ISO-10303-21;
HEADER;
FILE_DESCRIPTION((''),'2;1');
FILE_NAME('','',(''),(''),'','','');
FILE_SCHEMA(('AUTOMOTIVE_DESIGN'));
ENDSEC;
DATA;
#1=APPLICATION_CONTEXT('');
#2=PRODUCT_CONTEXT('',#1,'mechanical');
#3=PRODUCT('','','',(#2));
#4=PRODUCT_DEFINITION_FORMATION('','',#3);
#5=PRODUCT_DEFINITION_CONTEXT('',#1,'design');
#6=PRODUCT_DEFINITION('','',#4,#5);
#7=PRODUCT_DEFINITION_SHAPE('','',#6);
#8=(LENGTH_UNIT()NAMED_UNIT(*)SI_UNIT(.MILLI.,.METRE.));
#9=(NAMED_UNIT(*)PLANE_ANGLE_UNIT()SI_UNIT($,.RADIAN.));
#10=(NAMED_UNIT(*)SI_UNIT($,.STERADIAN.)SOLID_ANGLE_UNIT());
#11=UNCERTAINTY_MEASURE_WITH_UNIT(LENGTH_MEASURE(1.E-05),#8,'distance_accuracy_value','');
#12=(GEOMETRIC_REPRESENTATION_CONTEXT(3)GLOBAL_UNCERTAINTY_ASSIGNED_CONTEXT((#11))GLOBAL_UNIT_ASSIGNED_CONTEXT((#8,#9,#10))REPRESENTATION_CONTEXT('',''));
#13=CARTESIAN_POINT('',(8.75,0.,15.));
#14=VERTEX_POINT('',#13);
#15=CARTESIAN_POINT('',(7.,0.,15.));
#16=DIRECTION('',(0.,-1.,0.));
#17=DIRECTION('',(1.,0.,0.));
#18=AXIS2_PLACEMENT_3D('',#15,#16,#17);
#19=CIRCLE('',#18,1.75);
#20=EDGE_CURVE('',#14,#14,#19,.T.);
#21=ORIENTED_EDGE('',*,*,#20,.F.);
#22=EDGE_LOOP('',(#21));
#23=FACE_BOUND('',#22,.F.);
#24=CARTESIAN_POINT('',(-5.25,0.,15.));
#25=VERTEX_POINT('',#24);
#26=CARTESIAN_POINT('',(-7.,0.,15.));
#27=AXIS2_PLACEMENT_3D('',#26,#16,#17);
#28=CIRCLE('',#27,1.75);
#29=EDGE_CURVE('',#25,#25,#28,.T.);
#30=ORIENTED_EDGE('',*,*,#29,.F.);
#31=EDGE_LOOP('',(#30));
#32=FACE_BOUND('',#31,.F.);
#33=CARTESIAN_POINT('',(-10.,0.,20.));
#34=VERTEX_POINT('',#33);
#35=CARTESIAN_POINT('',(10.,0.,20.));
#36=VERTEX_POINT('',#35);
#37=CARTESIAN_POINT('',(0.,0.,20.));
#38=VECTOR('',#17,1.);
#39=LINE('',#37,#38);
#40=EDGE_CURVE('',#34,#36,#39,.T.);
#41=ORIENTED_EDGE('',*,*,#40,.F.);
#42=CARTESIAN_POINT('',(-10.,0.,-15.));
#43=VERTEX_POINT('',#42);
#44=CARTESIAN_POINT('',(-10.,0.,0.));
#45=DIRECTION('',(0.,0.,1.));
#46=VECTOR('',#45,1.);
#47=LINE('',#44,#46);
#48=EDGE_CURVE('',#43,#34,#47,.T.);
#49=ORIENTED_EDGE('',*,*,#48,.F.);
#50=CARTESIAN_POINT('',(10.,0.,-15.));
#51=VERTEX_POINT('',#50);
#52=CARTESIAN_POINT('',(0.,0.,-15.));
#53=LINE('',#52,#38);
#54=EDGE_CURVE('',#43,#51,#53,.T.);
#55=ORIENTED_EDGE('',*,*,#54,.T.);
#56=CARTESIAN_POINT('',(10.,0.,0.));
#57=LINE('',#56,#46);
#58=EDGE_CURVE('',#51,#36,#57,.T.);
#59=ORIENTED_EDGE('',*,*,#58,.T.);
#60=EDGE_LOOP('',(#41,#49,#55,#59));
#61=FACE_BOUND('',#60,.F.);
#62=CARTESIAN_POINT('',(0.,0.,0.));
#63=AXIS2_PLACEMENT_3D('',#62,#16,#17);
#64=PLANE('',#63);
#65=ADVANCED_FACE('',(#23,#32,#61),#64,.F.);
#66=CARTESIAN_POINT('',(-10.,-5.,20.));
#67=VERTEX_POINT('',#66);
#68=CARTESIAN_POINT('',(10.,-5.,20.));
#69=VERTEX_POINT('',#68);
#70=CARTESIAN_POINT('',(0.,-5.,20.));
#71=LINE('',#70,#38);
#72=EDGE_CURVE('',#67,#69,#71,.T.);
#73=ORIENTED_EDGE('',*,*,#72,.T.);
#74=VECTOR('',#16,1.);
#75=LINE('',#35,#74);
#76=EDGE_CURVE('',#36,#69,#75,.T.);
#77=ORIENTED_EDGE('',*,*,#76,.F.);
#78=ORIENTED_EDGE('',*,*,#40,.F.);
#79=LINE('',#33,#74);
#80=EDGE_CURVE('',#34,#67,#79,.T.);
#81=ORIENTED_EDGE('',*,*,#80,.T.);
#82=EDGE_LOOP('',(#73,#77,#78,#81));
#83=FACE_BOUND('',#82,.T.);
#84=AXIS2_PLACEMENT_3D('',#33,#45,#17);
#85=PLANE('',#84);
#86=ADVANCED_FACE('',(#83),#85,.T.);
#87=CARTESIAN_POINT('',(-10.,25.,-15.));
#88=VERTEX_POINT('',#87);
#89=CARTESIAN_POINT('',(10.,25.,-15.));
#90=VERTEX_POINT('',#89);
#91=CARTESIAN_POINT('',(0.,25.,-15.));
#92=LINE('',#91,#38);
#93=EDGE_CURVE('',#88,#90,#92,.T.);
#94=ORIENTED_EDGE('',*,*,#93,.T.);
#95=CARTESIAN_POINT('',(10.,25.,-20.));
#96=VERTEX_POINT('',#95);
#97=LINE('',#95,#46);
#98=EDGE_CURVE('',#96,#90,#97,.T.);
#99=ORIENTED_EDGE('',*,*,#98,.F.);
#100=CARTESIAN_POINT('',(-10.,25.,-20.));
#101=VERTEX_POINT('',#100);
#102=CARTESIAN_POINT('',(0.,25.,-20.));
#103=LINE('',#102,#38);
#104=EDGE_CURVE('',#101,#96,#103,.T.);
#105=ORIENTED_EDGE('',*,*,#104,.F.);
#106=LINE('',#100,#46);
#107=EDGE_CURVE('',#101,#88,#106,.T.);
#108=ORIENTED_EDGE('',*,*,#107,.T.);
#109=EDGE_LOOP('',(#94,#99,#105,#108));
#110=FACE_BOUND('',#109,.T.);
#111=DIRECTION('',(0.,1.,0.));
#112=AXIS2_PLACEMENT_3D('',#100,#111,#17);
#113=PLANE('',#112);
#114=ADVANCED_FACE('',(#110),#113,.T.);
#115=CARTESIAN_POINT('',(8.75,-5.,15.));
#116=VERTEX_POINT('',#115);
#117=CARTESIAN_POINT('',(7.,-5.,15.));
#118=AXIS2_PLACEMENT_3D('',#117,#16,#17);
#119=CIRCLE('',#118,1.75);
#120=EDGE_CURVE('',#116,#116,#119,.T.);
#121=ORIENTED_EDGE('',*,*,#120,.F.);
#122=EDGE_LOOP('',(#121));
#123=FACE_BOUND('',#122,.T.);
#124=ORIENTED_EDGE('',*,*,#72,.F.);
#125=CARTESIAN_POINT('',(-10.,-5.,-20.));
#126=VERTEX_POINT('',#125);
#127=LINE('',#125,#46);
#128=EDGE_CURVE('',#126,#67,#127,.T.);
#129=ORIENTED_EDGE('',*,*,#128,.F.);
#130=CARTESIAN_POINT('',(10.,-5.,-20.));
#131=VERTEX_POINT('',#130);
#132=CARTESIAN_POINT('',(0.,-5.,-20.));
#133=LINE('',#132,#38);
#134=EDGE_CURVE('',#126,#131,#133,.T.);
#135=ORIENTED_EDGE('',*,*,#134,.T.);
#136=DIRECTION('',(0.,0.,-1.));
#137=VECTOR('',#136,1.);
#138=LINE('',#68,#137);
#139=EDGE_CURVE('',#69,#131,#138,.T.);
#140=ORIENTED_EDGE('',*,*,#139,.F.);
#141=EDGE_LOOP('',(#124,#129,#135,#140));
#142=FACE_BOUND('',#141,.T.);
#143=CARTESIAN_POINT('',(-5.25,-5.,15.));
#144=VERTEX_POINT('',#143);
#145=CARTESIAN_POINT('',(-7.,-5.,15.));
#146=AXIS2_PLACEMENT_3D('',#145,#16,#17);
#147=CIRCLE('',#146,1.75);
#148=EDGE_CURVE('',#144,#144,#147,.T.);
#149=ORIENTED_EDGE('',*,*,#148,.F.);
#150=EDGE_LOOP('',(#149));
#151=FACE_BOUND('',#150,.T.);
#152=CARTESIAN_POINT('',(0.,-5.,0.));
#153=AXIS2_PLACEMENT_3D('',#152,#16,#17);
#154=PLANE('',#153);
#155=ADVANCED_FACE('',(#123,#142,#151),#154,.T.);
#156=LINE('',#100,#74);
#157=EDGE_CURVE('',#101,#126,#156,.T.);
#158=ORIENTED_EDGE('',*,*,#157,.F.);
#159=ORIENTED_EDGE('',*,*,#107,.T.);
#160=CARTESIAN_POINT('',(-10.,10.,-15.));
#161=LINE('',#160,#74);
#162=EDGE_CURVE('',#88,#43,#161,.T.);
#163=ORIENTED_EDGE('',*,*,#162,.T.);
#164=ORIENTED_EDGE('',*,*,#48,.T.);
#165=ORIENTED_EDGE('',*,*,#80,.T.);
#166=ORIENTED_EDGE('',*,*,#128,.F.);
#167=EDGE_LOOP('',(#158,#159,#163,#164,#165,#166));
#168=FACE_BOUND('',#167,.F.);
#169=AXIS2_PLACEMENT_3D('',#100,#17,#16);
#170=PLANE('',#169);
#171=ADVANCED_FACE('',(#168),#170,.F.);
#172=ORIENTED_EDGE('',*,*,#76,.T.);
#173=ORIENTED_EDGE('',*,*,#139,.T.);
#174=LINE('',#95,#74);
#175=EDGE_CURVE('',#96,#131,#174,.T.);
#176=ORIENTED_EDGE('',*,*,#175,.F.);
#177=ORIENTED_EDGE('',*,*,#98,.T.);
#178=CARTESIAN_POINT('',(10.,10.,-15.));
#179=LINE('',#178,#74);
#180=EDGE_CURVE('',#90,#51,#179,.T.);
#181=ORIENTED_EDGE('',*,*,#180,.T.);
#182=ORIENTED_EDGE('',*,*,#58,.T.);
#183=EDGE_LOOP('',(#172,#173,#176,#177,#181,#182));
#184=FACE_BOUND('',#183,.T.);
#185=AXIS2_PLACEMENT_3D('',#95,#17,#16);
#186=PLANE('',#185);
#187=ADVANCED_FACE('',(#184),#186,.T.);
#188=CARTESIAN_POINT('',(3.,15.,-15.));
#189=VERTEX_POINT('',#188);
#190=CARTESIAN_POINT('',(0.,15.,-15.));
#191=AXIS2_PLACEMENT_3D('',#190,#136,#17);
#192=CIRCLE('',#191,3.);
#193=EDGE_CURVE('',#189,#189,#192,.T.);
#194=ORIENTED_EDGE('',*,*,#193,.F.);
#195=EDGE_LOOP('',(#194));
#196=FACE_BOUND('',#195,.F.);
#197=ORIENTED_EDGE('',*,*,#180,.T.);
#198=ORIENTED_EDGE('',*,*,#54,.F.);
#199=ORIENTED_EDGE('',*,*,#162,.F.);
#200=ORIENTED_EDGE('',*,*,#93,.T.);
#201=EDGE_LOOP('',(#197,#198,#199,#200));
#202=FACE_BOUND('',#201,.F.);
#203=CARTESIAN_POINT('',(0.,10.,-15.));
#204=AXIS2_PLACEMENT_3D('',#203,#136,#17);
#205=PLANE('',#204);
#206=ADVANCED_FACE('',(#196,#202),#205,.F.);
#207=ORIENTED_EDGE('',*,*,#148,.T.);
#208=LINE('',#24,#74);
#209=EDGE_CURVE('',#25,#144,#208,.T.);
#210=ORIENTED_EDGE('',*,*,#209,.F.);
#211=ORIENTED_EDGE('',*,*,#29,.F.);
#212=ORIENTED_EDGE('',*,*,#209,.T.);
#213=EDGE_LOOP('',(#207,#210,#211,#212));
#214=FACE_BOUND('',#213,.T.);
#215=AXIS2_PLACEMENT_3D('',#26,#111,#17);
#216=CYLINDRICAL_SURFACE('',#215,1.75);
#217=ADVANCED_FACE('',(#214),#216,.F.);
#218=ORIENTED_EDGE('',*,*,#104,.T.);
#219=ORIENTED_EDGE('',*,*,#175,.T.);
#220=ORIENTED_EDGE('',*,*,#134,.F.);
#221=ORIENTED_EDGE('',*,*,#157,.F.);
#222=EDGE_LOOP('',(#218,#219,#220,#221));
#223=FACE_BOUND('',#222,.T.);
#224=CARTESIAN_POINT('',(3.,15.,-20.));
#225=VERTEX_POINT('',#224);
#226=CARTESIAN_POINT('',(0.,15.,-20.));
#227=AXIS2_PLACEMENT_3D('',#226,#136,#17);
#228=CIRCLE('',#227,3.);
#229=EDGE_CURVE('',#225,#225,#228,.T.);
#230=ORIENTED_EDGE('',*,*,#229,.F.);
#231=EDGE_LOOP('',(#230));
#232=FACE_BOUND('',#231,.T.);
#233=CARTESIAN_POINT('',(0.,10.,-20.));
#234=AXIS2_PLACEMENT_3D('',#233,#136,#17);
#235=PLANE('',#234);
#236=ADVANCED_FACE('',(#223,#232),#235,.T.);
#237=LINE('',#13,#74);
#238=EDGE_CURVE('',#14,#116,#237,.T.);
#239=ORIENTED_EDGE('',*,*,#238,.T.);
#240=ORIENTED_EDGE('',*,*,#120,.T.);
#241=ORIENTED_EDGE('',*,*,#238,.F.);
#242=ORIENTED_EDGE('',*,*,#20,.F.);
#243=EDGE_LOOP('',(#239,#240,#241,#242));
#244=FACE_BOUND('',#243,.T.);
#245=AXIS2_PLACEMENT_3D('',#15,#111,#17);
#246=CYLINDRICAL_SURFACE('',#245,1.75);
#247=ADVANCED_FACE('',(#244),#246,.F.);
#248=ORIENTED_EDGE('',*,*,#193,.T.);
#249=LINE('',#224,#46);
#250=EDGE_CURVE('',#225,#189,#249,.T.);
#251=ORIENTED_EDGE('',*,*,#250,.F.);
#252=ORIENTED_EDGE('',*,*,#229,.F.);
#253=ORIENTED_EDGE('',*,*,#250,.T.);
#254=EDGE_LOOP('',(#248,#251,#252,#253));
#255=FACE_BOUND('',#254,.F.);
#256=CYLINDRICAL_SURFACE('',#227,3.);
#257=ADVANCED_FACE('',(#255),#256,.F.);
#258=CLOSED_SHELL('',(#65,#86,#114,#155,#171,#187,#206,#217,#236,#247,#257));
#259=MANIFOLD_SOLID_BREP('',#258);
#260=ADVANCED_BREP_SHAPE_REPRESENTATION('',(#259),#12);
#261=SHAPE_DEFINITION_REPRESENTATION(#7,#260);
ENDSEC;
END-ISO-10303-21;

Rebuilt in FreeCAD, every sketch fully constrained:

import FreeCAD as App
import Part
import Sketcher
from FreeCAD import Vector
Q = App.Units.Quantity

doc = App.newDocument("Part")
body = doc.addObject("PartDesign::Body", "Body")

# Sketch on XZ plane
sketch1 = doc.addObject("Sketcher::SketchObject", "Sketch")
body.addObject(sketch1)
sketch1.AttachmentSupport = (doc.XZ_Plane, [""])
sketch1.MapMode = "FlatFace"
sketch1.addGeometry([
    Part.LineSegment(Vector(-10, 20, 0), Vector(-10, -20, 0)),  # 0
    Part.LineSegment(Vector(-10, -20, 0), Vector(10, -20, 0)),  # 1
    Part.LineSegment(Vector(10, -20, 0), Vector(10, 20, 0)),  # 2
    Part.LineSegment(Vector(10, 20, 0), Vector(-10, 20, 0)),  # 3
    Part.Circle(Vector(-7, 15, 0), Vector(0, 0, 1), 1.8),  # 4
    Part.Circle(Vector(7, 15, 0), Vector(0, 0, 1), 1.8),  # 5
], False)
sketch1.addConstraint([
    Sketcher.Constraint("Coincident", 0, 2, 1, 1),
    Sketcher.Constraint("Coincident", 1, 2, 2, 1),
    Sketcher.Constraint("Coincident", 2, 2, 3, 1),
    Sketcher.Constraint("Coincident", 3, 2, 0, 1),
    Sketcher.Constraint("Vertical", 0),
    Sketcher.Constraint("Horizontal", 1),
    Sketcher.Constraint("Vertical", 2),
    Sketcher.Constraint("Horizontal", 3),
    Sketcher.Constraint("Equal", 4, 5),
    Sketcher.Constraint("Symmetric", 0, 2, 2, 2, -1, 1),
    Sketcher.Constraint("Symmetric", 4, 3, 5, 3, -2),
    Sketcher.Constraint("Diameter", 4, Q("3.5 mm")),
    Sketcher.Constraint("DistanceX", 1, 1, 1, 2, Q("20 mm")),
    Sketcher.Constraint("DistanceY", 0, 2, 0, 1, Q("40 mm")),
    Sketcher.Constraint("DistanceX", 4, 3, -1, 1, Q("7 mm")),
    Sketcher.Constraint("DistanceY", -1, 1, 4, 3, Q("15 mm")),
])
pad1 = doc.addObject("PartDesign::Pad", "Pad")
body.addObject(pad1)
pad1.Profile = sketch1
pad1.Length = 5

# Sketch on XY plane
sketch2 = doc.addObject("Sketcher::SketchObject", "Sketch001")
body.addObject(sketch2)
sketch2.AttachmentSupport = (doc.XY_Plane, [""])
sketch2.MapMode = "FlatFace"
sketch2.AttachmentOffset = App.Placement(Vector(0, 0, -20), App.Rotation())
sketch2.addGeometry([
    Part.LineSegment(Vector(-10, -5, 0), Vector(-10, 25, 0)),  # 0
    Part.LineSegment(Vector(-10, 25, 0), Vector(10, 25, 0)),  # 1
    Part.LineSegment(Vector(10, 25, 0), Vector(10, -5, 0)),  # 2
    Part.LineSegment(Vector(10, -5, 0), Vector(-10, -5, 0)),  # 3
    Part.Circle(Vector(0, 15, 0), Vector(0, 0, 1), 3),  # 4
], False)
sketch2.addConstraint([
    Sketcher.Constraint("Coincident", 0, 2, 1, 1),
    Sketcher.Constraint("Coincident", 1, 2, 2, 1),
    Sketcher.Constraint("Coincident", 2, 2, 3, 1),
    Sketcher.Constraint("Coincident", 3, 2, 0, 1),
    Sketcher.Constraint("Vertical", 0),
    Sketcher.Constraint("Horizontal", 1),
    Sketcher.Constraint("Vertical", 2),
    Sketcher.Constraint("Horizontal", 3),
    Sketcher.Constraint("PointOnObject", 4, 3, -2),
    Sketcher.Constraint("Diameter", 4, Q("6 mm")),
    Sketcher.Constraint("DistanceX", 1, 1, 1, 2, Q("20 mm")),
    Sketcher.Constraint("DistanceY", 0, 1, 0, 2, Q("30 mm")),
    Sketcher.Constraint("DistanceY", -1, 1, 4, 3, Q("15 mm")),
    Sketcher.Constraint("DistanceX", 0, 2, -1, 1, Q("10 mm")),
    Sketcher.Constraint("DistanceY", -1, 1, 0, 2, Q("25 mm")),
])
pad2 = doc.addObject("PartDesign::Pad", "Pad001")
body.addObject(pad2)
pad2.Profile = sketch2
pad2.Length = 5

doc.recompute()
